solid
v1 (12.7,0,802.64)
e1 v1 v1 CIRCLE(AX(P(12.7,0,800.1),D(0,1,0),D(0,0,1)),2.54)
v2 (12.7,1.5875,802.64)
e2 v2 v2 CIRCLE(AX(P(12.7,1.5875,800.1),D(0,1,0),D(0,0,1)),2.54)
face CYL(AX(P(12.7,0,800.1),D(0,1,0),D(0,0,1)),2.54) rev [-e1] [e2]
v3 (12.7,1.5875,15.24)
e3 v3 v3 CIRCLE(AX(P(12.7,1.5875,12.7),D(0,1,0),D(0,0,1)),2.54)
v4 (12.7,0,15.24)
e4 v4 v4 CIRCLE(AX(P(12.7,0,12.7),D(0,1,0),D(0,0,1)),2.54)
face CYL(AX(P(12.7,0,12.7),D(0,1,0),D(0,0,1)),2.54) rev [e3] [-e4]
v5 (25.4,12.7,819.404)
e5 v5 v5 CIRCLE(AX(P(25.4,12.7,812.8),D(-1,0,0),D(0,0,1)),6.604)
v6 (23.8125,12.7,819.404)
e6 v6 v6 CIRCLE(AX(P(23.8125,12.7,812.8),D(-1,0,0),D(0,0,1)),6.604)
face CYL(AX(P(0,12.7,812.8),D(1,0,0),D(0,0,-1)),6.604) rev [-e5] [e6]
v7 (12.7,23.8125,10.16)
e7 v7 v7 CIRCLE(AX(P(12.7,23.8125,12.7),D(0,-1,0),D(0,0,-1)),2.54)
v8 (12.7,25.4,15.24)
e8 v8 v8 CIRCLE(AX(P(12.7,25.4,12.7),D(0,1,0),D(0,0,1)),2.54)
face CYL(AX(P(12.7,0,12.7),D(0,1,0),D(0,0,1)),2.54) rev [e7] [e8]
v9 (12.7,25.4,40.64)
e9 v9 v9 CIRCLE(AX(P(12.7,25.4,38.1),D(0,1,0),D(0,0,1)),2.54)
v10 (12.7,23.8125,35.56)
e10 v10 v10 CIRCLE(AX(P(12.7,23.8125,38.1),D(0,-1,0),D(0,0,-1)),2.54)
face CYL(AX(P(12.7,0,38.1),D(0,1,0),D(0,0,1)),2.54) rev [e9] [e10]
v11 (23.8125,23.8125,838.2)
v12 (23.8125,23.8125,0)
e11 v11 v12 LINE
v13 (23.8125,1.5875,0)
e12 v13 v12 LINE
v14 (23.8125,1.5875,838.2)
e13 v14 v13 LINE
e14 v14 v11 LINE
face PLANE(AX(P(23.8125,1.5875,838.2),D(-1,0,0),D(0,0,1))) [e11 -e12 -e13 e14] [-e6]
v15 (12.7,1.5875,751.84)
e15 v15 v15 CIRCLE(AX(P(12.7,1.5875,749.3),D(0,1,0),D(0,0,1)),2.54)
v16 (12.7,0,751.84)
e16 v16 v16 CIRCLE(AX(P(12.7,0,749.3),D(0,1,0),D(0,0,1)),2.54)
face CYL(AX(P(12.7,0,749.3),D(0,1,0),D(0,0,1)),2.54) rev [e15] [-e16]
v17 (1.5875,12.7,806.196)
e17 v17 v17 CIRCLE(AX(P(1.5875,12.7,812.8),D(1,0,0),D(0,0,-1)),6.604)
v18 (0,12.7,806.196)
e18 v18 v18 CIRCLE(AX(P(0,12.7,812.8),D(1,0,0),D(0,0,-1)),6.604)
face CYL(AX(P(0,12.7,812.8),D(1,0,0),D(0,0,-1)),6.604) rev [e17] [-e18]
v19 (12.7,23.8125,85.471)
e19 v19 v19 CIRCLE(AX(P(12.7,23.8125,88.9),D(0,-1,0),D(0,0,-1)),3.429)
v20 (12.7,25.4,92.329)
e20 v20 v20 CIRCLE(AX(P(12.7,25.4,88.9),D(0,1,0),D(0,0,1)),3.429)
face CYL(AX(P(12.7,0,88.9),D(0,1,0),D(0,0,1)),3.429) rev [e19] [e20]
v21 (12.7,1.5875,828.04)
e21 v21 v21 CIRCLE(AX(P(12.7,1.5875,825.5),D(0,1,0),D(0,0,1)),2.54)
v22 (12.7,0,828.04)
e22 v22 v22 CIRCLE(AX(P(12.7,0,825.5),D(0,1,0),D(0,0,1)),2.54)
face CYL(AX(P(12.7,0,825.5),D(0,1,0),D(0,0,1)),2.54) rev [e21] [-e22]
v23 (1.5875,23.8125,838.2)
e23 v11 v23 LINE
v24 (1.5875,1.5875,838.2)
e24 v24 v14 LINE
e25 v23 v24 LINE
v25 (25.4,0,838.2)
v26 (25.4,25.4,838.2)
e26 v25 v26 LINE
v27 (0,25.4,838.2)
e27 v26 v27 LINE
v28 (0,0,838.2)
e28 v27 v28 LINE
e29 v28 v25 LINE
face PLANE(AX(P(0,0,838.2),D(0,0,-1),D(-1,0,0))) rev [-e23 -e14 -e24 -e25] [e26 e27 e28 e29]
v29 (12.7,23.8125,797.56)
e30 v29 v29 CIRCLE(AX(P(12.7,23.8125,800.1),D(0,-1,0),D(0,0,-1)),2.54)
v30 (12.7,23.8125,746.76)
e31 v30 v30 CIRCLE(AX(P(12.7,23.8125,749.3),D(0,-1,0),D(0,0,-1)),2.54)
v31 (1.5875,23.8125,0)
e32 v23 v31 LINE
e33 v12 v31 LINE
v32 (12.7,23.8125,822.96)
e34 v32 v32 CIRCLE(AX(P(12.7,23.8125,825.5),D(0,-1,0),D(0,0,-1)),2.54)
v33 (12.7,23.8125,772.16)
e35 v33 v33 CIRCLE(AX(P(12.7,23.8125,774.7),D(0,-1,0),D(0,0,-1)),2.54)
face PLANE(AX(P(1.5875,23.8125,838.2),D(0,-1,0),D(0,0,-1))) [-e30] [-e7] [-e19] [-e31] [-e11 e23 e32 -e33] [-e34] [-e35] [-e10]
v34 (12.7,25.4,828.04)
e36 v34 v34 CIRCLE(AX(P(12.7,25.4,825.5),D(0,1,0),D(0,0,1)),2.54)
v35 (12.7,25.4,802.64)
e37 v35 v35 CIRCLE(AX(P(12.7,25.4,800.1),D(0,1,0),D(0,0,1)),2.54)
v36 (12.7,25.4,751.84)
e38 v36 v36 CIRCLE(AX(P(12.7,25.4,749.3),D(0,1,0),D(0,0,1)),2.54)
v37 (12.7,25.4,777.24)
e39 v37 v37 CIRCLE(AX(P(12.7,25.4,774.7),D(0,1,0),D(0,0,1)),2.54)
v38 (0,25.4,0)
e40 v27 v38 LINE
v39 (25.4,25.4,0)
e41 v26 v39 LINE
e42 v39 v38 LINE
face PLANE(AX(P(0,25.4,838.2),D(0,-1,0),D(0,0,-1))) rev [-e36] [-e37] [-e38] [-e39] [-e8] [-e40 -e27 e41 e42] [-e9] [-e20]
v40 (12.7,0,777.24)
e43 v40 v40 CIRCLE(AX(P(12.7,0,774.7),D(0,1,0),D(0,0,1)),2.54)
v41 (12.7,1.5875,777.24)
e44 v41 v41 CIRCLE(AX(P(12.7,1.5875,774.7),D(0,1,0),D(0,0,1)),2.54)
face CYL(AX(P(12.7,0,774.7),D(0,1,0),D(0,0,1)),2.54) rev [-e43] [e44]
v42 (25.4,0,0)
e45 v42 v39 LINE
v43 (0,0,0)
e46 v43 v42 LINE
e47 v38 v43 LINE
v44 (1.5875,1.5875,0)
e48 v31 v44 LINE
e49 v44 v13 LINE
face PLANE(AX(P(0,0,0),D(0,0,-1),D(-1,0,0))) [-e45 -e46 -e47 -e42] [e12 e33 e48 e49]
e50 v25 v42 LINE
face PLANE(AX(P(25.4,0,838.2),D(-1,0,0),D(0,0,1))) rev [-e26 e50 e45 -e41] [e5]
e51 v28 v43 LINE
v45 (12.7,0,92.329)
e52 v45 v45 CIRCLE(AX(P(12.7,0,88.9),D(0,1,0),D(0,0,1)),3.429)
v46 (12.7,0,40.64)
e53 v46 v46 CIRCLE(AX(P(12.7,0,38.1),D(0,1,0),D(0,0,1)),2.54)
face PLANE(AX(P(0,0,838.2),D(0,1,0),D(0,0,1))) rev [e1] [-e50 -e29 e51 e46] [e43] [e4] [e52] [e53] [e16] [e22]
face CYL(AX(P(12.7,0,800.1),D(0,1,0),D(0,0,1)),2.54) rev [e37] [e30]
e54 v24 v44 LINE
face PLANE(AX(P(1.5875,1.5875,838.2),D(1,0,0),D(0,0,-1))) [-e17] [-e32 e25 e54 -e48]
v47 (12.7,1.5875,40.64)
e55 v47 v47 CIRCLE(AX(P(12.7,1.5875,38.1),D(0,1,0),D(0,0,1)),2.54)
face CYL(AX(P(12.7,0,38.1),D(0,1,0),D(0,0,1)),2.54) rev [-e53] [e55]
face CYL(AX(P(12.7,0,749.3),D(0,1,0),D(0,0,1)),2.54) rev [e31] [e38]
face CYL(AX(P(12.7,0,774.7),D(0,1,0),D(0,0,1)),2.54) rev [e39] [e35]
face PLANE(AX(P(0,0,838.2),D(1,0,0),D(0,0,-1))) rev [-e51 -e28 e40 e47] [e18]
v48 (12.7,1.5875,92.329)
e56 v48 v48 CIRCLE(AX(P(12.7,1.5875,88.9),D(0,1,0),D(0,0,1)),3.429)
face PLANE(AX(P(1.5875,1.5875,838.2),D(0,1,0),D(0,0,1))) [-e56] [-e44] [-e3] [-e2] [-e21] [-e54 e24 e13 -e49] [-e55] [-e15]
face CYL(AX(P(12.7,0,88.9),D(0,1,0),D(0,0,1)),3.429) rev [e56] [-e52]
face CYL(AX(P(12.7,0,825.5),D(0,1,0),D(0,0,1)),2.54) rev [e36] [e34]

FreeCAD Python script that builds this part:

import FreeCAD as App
import Part
import Sketcher

V = App.Vector
Q = App.Units.Quantity

doc = App.newDocument("Part")
body = doc.addObject("PartDesign::Body", "Body")

# Sketch on XY plane
sketch1 = body.newObject("Sketcher::SketchObject", "Sketch")
sketch1.AttachmentSupport = (doc.getObject("XY_Plane"), [""])
sketch1.MapMode = "FlatFace"
sketch1.addGeometry(Part.LineSegment(V(0, 25, 0), V(0, 0, 0)), False)
sketch1.addGeometry(Part.LineSegment(V(0, 0, 0), V(25, 0, 0)), False)
sketch1.addGeometry(Part.LineSegment(V(25, 0, 0), V(25, 25, 0)), False)
sketch1.addGeometry(Part.LineSegment(V(25, 25, 0), V(0, 25, 0)), False)
sketch1.addGeometry(Part.LineSegment(V(24, 2, 0), V(2, 2, 0)), False)
sketch1.addGeometry(Part.LineSegment(V(2, 2, 0), V(2, 24, 0)), False)
sketch1.addGeometry(Part.LineSegment(V(2, 24, 0), V(24, 24, 0)), False)
sketch1.addGeometry(Part.LineSegment(V(24, 24, 0), V(24, 2, 0)), False)
sketch1.addConstraint(Sketcher.Constraint("Coincident", 0, 2, 1, 1))
sketch1.addConstraint(Sketcher.Constraint("Coincident", 1, 2, 2, 1))
sketch1.addConstraint(Sketcher.Constraint("Coincident", 2, 2, 3, 1))
sketch1.addConstraint(Sketcher.Constraint("Coincident", 3, 2, 0, 1))
sketch1.addConstraint(Sketcher.Constraint("Coincident", 4, 2, 5, 1))
sketch1.addConstraint(Sketcher.Constraint("Coincident", 5, 2, 6, 1))
sketch1.addConstraint(Sketcher.Constraint("Coincident", 6, 2, 7, 1))
sketch1.addConstraint(Sketcher.Constraint("Coincident", 7, 2, 4, 1))
sketch1.addConstraint(Sketcher.Constraint("Vertical", 0))
sketch1.addConstraint(Sketcher.Constraint("Horizontal", 1))
sketch1.addConstraint(Sketcher.Constraint("Vertical", 2))
sketch1.addConstraint(Sketcher.Constraint("Horizontal", 3))
sketch1.addConstraint(Sketcher.Constraint("Horizontal", 4))
sketch1.addConstraint(Sketcher.Constraint("Vertical", 5))
sketch1.addConstraint(Sketcher.Constraint("Horizontal", 6))
sketch1.addConstraint(Sketcher.Constraint("Vertical", 7))
sketch1.addConstraint(Sketcher.Constraint("Coincident", 0, 2, -1, 1))
sketch1.addConstraint(Sketcher.Constraint("Equal", 3, 0))
sketch1.addConstraint(Sketcher.Constraint("Equal", 6, 5))
sketch1.addConstraint(Sketcher.Constraint("DistanceX", 1, 1, 1, 2, Q("1 in")))
sketch1.addConstraint(Sketcher.Constraint("DistanceX", 4, 2, 4, 1, Q("0.875 in")))
sketch1.addConstraint(Sketcher.Constraint("DistanceX", -1, 1, 4, 2, Q("0.0625 in")))
sketch1.addConstraint(Sketcher.Constraint("DistanceY", -1, 1, 4, 2, Q("0.0625 in")))
pad1 = body.newObject("PartDesign::Pad", "Pad")
pad1.Profile = sketch1
pad1.Length = Q("33 in")

# Sketch on XZ plane
sketch2 = body.newObject("Sketcher::SketchObject", "Sketch001")
sketch2.AttachmentSupport = (doc.getObject("XZ_Plane"), [""])
sketch2.MapMode = "FlatFace"
sketch2.AttachmentOffset = App.Placement(V(0, 0, -1 * 25.4), App.Rotation())
sketch2.addGeometry(Part.Circle(V(12.7, 12.7, 0), V(0, 0, 1), 2.5), False)
sketch2.addGeometry(Part.Circle(V(12.7, 825.5, 0), V(0, 0, 1), 2.5), False)
sketch2.addGeometry(Part.Circle(V(12.7, 38.1, 0), V(0, 0, 1), 2.5), False)
sketch2.addGeometry(Part.Circle(V(12.7, 88.9, 0), V(0, 0, 1), 3.4), False)
sketch2.addGeometry(Part.Circle(V(12.7, 800.1, 0), V(0, 0, 1), 2.5), False)
sketch2.addGeometry(Part.Circle(V(12.7, 774.7, 0), V(0, 0, 1), 2.5), False)
sketch2.addGeometry(Part.Circle(V(12.7, 749.3, 0), V(0, 0, 1), 2.5), False)
sketch2.addConstraint(Sketcher.Constraint("Equal", 0, 1))
sketch2.addConstraint(Sketcher.Constraint("Equal", 1, 2))
sketch2.addConstraint(Sketcher.Constraint("Equal", 2, 4))
sketch2.addConstraint(Sketcher.Constraint("Equal", 4, 5))
sketch2.addConstraint(Sketcher.Constraint("Equal", 5, 6))
sketch2.addConstraint(Sketcher.Constraint("Vertical", 0, 3, 1, 3))
sketch2.addConstraint(Sketcher.Constraint("Vertical", 1, 3, 2, 3))
sketch2.addConstraint(Sketcher.Constraint("Vertical", 2, 3, 3, 3))
sketch2.addConstraint(Sketcher.Constraint("Vertical", 3, 3, 4, 3))
sketch2.addConstraint(Sketcher.Constraint("Vertical", 4, 3, 5, 3))
sketch2.addConstraint(Sketcher.Constraint("Vertical", 5, 3, 6, 3))
sketch2.addConstraint(Sketcher.Constraint("Diameter", 0, Q("0.2 in")))
sketch2.addConstraint(Sketcher.Constraint("Diameter", 3, Q("0.27 in")))
sketch2.addConstraint(Sketcher.Constraint("DistanceY", 0, 3, 1, 3, Q("32 in")))
sketch2.addConstraint(Sketcher.Constraint("DistanceY", 0, 3, 2, 3, Q("1 in")))
sketch2.addConstraint(Sketcher.Constraint("DistanceY", 2, 3, 3, 3, Q("2 in")))
sketch2.addConstraint(Sketcher.Constraint("DistanceY", 4, 3, 1, 3, Q("1 in")))
sketch2.addConstraint(Sketcher.Constraint("DistanceY", 5, 3, 4, 3, Q("1 in")))
sketch2.addConstraint(Sketcher.Constraint("DistanceY", 6, 3, 5, 3, Q("1 in")))
sketch2.addConstraint(Sketcher.Constraint("DistanceX", -1, 1, 0, 3, Q("0.5 in")))
sketch2.addConstraint(Sketcher.Constraint("DistanceY", -1, 1, 0, 3, Q("0.5 in")))
pocket1 = body.newObject("PartDesign::Pocket", "Pocket")
pocket1.Profile = sketch2
pocket1.Type = "ThroughAll"
pocket1.Reversed = True

# Sketch on YZ plane
sketch3 = body.newObject("Sketcher::SketchObject", "Sketch002")
sketch3.AttachmentSupport = (doc.getObject("YZ_Plane"), [""])
sketch3.MapMode = "FlatFace"
sketch3.AttachmentOffset = App.Placement(V(0, 0, 1 * 25.4), App.Rotation())
sketch3.addGeometry(Part.Circle(V(13, 813, 0), V(0, 0, 1), 7), False)
sketch3.addConstraint(Sketcher.Constraint("Diameter", 0, Q("0.52 in")))
sketch3.addConstraint(Sketcher.Constraint("DistanceY", -1, 1, 0, 3, Q("32 in")))
sketch3.addConstraint(Sketcher.Constraint("DistanceX", -1, 1, 0, 3, Q("0.5 in")))
pocket2 = body.newObject("PartDesign::Pocket", "Pocket001")
pocket2.Profile = sketch3
pocket2.Type = "ThroughAll"
pocket2.Midplane = True

doc.recompute()
